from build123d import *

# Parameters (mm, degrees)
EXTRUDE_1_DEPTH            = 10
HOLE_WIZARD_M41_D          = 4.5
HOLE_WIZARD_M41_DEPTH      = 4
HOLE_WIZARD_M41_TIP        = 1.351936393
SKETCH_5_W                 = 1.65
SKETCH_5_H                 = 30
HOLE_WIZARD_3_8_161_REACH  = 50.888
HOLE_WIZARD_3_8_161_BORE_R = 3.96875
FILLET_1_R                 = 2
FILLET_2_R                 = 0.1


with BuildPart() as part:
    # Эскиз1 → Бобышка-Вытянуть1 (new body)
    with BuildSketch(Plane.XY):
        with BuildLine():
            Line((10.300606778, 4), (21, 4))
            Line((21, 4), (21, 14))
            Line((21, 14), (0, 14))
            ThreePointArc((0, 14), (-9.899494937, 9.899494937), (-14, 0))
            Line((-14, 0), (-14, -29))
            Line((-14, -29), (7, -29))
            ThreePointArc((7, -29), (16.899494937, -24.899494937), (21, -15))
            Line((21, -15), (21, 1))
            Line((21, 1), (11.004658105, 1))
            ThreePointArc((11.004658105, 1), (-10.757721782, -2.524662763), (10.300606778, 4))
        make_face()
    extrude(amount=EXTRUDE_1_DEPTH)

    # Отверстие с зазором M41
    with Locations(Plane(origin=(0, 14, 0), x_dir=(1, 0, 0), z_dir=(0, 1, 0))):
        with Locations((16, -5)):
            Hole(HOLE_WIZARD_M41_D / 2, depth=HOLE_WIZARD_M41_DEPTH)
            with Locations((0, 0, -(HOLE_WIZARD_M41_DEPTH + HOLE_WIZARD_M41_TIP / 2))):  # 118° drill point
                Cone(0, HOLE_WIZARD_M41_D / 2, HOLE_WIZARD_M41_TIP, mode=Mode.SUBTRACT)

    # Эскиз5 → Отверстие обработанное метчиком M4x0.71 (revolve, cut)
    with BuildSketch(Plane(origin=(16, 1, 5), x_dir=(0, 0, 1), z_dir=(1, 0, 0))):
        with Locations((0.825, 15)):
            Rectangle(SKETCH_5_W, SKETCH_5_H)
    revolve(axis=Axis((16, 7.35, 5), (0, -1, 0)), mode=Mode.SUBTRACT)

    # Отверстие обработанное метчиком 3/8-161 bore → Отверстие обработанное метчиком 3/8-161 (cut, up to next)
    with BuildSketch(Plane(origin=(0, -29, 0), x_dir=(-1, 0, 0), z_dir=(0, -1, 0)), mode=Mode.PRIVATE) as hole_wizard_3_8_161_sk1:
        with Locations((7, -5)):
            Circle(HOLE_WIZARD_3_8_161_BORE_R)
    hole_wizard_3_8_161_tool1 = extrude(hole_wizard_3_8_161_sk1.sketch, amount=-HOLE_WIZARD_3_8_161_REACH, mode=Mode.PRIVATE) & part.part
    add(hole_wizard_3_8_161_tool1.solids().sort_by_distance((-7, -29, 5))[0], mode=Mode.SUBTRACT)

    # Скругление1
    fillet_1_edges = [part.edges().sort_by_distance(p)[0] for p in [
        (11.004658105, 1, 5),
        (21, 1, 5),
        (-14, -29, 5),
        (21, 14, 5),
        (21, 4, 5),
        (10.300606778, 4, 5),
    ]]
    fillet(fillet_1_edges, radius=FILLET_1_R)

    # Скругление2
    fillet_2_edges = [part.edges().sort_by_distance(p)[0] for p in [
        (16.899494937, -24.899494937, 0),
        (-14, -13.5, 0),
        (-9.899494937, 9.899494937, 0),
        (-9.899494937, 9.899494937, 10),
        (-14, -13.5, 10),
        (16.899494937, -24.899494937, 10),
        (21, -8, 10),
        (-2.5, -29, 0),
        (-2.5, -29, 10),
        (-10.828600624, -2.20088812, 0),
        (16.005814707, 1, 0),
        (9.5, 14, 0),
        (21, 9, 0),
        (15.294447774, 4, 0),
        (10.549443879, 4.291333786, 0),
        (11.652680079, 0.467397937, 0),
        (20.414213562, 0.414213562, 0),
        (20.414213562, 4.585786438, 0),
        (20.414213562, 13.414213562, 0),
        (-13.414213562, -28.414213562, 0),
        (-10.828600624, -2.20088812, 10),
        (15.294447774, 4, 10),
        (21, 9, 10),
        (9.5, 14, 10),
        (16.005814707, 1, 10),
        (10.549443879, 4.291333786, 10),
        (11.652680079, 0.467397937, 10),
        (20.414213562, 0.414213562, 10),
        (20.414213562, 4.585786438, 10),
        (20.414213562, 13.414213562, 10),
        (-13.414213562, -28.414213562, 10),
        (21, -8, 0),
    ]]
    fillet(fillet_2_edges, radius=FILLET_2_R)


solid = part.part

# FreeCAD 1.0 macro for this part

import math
import FreeCAD as App
import Part
import Sketcher
Q = App.Units.Quantity


def edges_at(feature, points):
    """Names of the edges that pass closest to the given points."""
    edges = feature.Shape.Edges
    near = lambda p: min(range(len(edges)), key=lambda i: edges[i].distToShape(Part.Vertex(*p))[0])
    return sorted({f"Edge{near(p) + 1}" for p in points})

doc = App.newDocument("Part")
body = doc.addObject("PartDesign::Body", "Body")

# Sketch on XY plane
sketch1 = doc.addObject("Sketcher::SketchObject", "Sketch")
body.addObject(sketch1)
sketch1.AttachmentSupport = (doc.XY_Plane, [""])
sketch1.MapMode = "FlatFace"
sketch1.addGeometry([
    Part.LineSegment(App.Vector(10.3, 4, 0), App.Vector(21, 4, 0)),  # 0
    Part.LineSegment(App.Vector(21, 4, 0), App.Vector(21, 14, 0)),  # 1
    Part.LineSegment(App.Vector(21, 14, 0), App.Vector(0, 14, 0)),  # 2
    Part.ArcOfCircle(Part.Circle(App.Vector(0, 0, 0), App.Vector(0, 0, 1), 14), math.radians(90), math.radians(180)),  # 3
    Part.LineSegment(App.Vector(-14, 0, 0), App.Vector(-14, -29, 0)),  # 4
    Part.LineSegment(App.Vector(-14, -29, 0), App.Vector(7, -29, 0)),  # 5
    Part.ArcOfCircle(Part.Circle(App.Vector(7, -15, 0), App.Vector(0, 0, 1), 14), math.radians(-90), math.radians(0)),  # 6
    Part.LineSegment(App.Vector(21, -15, 0), App.Vector(21, 1, 0)),  # 7
    Part.LineSegment(App.Vector(21, 1, 0), App.Vector(11, 1, 0)),  # 8
    Part.ArcOfCircle(Part.Circle(App.Vector(0, 0, 0), App.Vector(0, 0, 1), 11.1), math.radians(21), math.radians(365)),  # 9
], False)
sketch1.addConstraint([
    Sketcher.Constraint("Coincident", 0, 2, 1, 1),
    Sketcher.Constraint("Coincident", 1, 2, 2, 1),
    Sketcher.Constraint("Tangent", 2, 2, 3, 1),
    Sketcher.Constraint("Tangent", 3, 2, 4, 1),
    Sketcher.Constraint("Coincident", 4, 2, 5, 1),
    Sketcher.Constraint("Tangent", 5, 2, 6, 1),
    Sketcher.Constraint("Tangent", 6, 2, 7, 1),
    Sketcher.Constraint("Coincident", 7, 2, 8, 1),
    Sketcher.Constraint("Coincident", 8, 2, 9, 2),
    Sketcher.Constraint("Coincident", 9, 1, 0, 1),
    Sketcher.Constraint("Horizontal", 0),
    Sketcher.Constraint("Vertical", 1),
    Sketcher.Constraint("Horizontal", 2),
    Sketcher.Constraint("Vertical", 4),
    Sketcher.Constraint("Horizontal", 5),
    Sketcher.Constraint("Vertical", 7),
    Sketcher.Constraint("Horizontal", 8),
    Sketcher.Constraint("Coincident", 3, 3, -1, 1),
    Sketcher.Constraint("Coincident", 9, 3, -1, 1),
    Sketcher.Constraint("Equal", 3, 6),
    Sketcher.Constraint("Vertical", 1, 2, 6, 2),
    Sketcher.Constraint("Radius", 3, Q("14 mm")),
    Sketcher.Constraint("DistanceX", 2, 2, 2, 1, Q("21 mm")),
    Sketcher.Constraint("DistanceY", 1, 1, 1, 2, Q("10 mm")),
    Sketcher.Constraint("DistanceY", 4, 2, 4, 1, Q("29 mm")),
    Sketcher.Constraint("DistanceY", 7, 1, 7, 2, Q("16 mm")),
    Sketcher.Constraint("Radius", 9, Q("11.05 mm")),
])
pad1 = doc.addObject("PartDesign::Pad", "Pad")
body.addObject(pad1)
pad1.Profile = sketch1
pad1.Length = 10

# Sketch on XZ plane
sketch2 = doc.addObject("Sketcher::SketchObject", "Sketch001")
body.addObject(sketch2)
sketch2.AttachmentSupport = (doc.XZ_Plane, [""])
sketch2.MapMode = "FlatFace"
sketch2.AttachmentOffset = App.Placement(App.Vector(0, 0, -14), App.Rotation())
sketch2.addGeometry(Part.Circle(App.Vector(16, 5, 0), App.Vector(0, 0, 1), 2.2), False)
sketch2.addConstraint([
    Sketcher.Constraint("Diameter", 0, Q("4.5 mm")),
    Sketcher.Constraint("DistanceX", -1, 1, 0, 3, Q("16 mm")),
    Sketcher.Constraint("DistanceY", -1, 1, 0, 3, Q("5 mm")),
])
doc.recompute()
hole = doc.addObject("PartDesign::Hole", "Hole")
body.addObject(hole)
hole.Profile = sketch2
hole.ThreadType = "None"
hole.Diameter = 4.5
hole.DepthType = "Dimension"
hole.Depth = 4
hole.DrillPoint = "Angled"
hole.DrillPointAngle = 118
hole.Reversed = True

# Sketch on YZ plane
sketch3 = doc.addObject("Sketcher::SketchObject", "Sketch002")
body.addObject(sketch3)
sketch3.AttachmentSupport = (doc.YZ_Plane, [""])
sketch3.MapMode = "FlatFace"
sketch3.AttachmentOffset = App.Placement(App.Vector(0, 0, 16), App.Rotation())
sketch3.addGeometry([
    Part.LineSegment(App.Vector(-29, 5, 0), App.Vector(1, 5, 0)),
    Part.LineSegment(App.Vector(1, 5, 0), App.Vector(1, 6.7, 0)),
    Part.LineSegment(App.Vector(1, 6.7, 0), App.Vector(-29, 6.7, 0)),
    Part.LineSegment(App.Vector(-29, 6.7, 0), App.Vector(-29, 5, 0)),
], False)
sketch3.addGeometry(Part.LineSegment(App.Vector(1, 5, 0), App.Vector(-29, 5, 0)), True)  # axis
sketch3.addConstraint([
    Sketcher.Constraint("Coincident", 0, 2, 1, 1),
    Sketcher.Constraint("Coincident", 1, 2, 2, 1),
    Sketcher.Constraint("Coincident", 2, 2, 3, 1),
    Sketcher.Constraint("Coincident", 3, 2, 0, 1),
    Sketcher.Constraint("Horizontal", 0),
    Sketcher.Constraint("Vertical", 1),
    Sketcher.Constraint("Horizontal", 2),
    Sketcher.Constraint("Vertical", 3),
    Sketcher.Constraint("Horizontal", 4),
    Sketcher.Constraint("Coincident", 4, 1, 0, 2),
    Sketcher.Constraint("Vertical", 2, 2, 4, 2),
    Sketcher.Constraint("DistanceX", 0, 1, 0, 2, Q("30 mm")),
    Sketcher.Constraint("DistanceX", -1, 1, 0, 2, Q("1 mm")),
    Sketcher.Constraint("DistanceY", -1, 1, 0, 2, Q("5 mm")),
    Sketcher.Constraint("DistanceY", 1, 1, 1, 2, Q("1.65 mm")),
])
groove = doc.addObject("PartDesign::Groove", "Groove")
body.addObject(groove)
groove.Profile = sketch3
groove.ReferenceAxis = (sketch3, ["Axis0"])
groove.Angle = 360

# Sketch on XZ plane
sketch4 = doc.addObject("Sketcher::SketchObject", "Sketch003")
body.addObject(sketch4)
sketch4.AttachmentSupport = (doc.XZ_Plane, [""])
sketch4.MapMode = "FlatFace"
sketch4.AttachmentOffset = App.Placement(App.Vector(0, 0, 29), App.Rotation())
sketch4.addGeometry(Part.Circle(App.Vector(-7, 5, 0), App.Vector(0, 0, 1), 4), False)
sketch4.addConstraint([
    Sketcher.Constraint("DistanceX", 0, 3, -1, 1, Q("7 mm")),
    Sketcher.Constraint("DistanceY", -1, 1, 0, 3, Q("5 mm")),
    Sketcher.Constraint("Diameter", 0, Q("7.9375 mm")),
])
pocket1 = doc.addObject("PartDesign::Pocket", "Pocket")
body.addObject(pocket1)
pocket1.Profile = sketch4
pocket1.Length = 27.662456
doc.recompute()

fillet = doc.addObject("PartDesign::Fillet", "Fillet")
body.addObject(fillet)
fillet.Base = (pocket1, edges_at(pocket1, [
    (11.005, 1, 5),
    (21, 1, 5),
    (-14, -29, 5),
    (21, 14, 5),
    (21, 4, 5),
    (10.301, 4, 5),
]))
fillet.Radius = 2
doc.recompute()

fillet2 = doc.addObject("PartDesign::Fillet", "Fillet001")
body.addObject(fillet2)
fillet2.Base = (fillet, edges_at(fillet, [
    (16.899, -24.899, 0),
    (-14, -13.5, 0),
    (-9.899, 9.899, 0),
    (-9.899, 9.899, 10),
    (-14, -13.5, 10),
    (16.899, -24.899, 10),
    (21, -8, 10),
    (-2.5, -29, 0),
    (-2.5, -29, 10),
    (-10.829, -2.201, 0),
    (16.006, 1, 0),
    (9.5, 14, 0),
    (21, 9, 0),
    (15.294, 4, 0),
    (10.549, 4.291, 0),
    (11.653, 0.467, 0),
    (20.414, 0.414, 0),
    (20.414, 4.586, 0),
    (20.414, 13.414, 0),
    (-13.414, -28.414, 0),
    (-10.829, -2.201, 10),
    (15.294, 4, 10),
    (21, 9, 10),
    (9.5, 14, 10),
    (16.006, 1, 10),
    (10.549, 4.291, 10),
    (11.653, 0.467, 10),
    (20.414, 0.414, 10),
    (20.414, 4.586, 10),
    (20.414, 13.414, 10),
    (-13.414, -28.414, 10),
    (21, -8, 0),
]))
fillet2.Radius = 0.1

doc.recompute()
